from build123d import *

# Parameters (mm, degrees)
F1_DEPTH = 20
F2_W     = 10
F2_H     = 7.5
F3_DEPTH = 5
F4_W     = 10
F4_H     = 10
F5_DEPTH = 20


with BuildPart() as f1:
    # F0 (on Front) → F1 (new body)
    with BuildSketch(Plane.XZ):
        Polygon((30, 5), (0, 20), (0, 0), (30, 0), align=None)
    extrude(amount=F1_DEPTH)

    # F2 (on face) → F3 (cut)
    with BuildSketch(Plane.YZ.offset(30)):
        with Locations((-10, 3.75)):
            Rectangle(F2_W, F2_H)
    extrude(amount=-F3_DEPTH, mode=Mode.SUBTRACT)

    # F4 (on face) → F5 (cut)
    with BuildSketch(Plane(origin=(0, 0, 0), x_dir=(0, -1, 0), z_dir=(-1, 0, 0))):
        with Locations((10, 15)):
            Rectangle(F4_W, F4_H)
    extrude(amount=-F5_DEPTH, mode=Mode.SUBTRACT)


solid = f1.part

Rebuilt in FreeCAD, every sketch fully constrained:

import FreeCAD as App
import Part
import Sketcher
from FreeCAD import Vector
Q = App.Units.Quantity

doc = App.newDocument("Part")
params = doc.addObject("Spreadsheet::Sheet", "Params")
for row, (alias, value) in enumerate([
    ("sketch1_width", "30 mm"),
    ("sketch1_height", "20 mm"),
    ("sketch1_height2", "5 mm"),
    ("pad1_length", "20 mm"),
    ("sketch2_width", "10 mm"),
    ("sketch2_height", "7.5 mm"),
    ("pocket1_length", "5 mm"),
    ("sketch3_width", "10 mm"),
    ("pocket2_length", "20 mm"),
], start=1):
    params.set(f"A{row}", alias)
    params.set(f"B{row}", "=" + value)
    params.setAlias(f"B{row}", alias)

body = doc.addObject("PartDesign::Body", "Body")

sketch1 = doc.addObject("Sketcher::SketchObject", "Sketch")
body.addObject(sketch1)
sketch1.AttachmentSupport = (doc.XZ_Plane, [""])
sketch1.MapMode = "FlatFace"
sketch1.addGeometry([
    Part.LineSegment(Vector(30, 5, 0), Vector(0, 20, 0)),
    Part.LineSegment(Vector(0, 20, 0), Vector(0, 0, 0)),
    Part.LineSegment(Vector(0, 0, 0), Vector(30, 0, 0)),
    Part.LineSegment(Vector(30, 0, 0), Vector(30, 5, 0)),
], False)
sketch1.addConstraint([
    Sketcher.Constraint("Coincident", 0, 2, 1, 1),
    Sketcher.Constraint("Coincident", 1, 2, 2, 1),
    Sketcher.Constraint("Coincident", 2, 2, 3, 1),
    Sketcher.Constraint("Coincident", 3, 2, 0, 1),
    Sketcher.Constraint("Vertical", 1),
    Sketcher.Constraint("Horizontal", 2),
    Sketcher.Constraint("Vertical", 3),
    Sketcher.Constraint("Coincident", 1, 2, -1, 1),
    Sketcher.Constraint("DistanceX", 2, 1, 2, 2, Q("30 mm")),
    Sketcher.Constraint("DistanceY", 1, 2, 1, 1, Q("20 mm")),
    Sketcher.Constraint("DistanceY", 3, 1, 3, 2, Q("5 mm")),
])
sketch1.setExpression("Constraints[8]", "Params.sketch1_width")
sketch1.setExpression("Constraints[9]", "Params.sketch1_height")
sketch1.setExpression("Constraints[10]", "Params.sketch1_height2")
pad1 = doc.addObject("PartDesign::Pad", "Pad")
body.addObject(pad1)
pad1.Profile = sketch1
pad1.setExpression("Length", "Params.pad1_length")

sketch2 = doc.addObject("Sketcher::SketchObject", "Sketch001")
body.addObject(sketch2)
sketch2.AttachmentSupport = (doc.YZ_Plane, [""])
sketch2.MapMode = "FlatFace"
sketch2.AttachmentOffset = App.Placement(Vector(0, 0, 30), App.Rotation())
sketch2.addGeometry([
    Part.LineSegment(Vector(-15, 8, 0), Vector(-15, 0, 0)),
    Part.LineSegment(Vector(-15, 0, 0), Vector(-5, 0, 0)),
    Part.LineSegment(Vector(-5, 0, 0), Vector(-5, 8, 0)),
    Part.LineSegment(Vector(-5, 8, 0), Vector(-15, 8, 0)),
], False)
sketch2.addConstraint([
    Sketcher.Constraint("Coincident", 0, 2, 1, 1),
    Sketcher.Constraint("Coincident", 1, 2, 2, 1),
    Sketcher.Constraint("Coincident", 2, 2, 3, 1),
    Sketcher.Constraint("Coincident", 3, 2, 0, 1),
    Sketcher.Constraint("Vertical", 0),
    Sketcher.Constraint("Horizontal", 1),
    Sketcher.Constraint("Vertical", 2),
    Sketcher.Constraint("Horizontal", 3),
    Sketcher.Constraint("PointOnObject", 0, 2, -1),
    Sketcher.Constraint("DistanceX", 1, 1, 1, 2, Q("10 mm")),
    Sketcher.Constraint("DistanceY", 0, 2, 0, 1, Q("7.5 mm")),
    Sketcher.Constraint("DistanceX", 0, 2, -1, 1, Q("15 mm")),
])
sketch2.setExpression("Constraints[9]", "Params.sketch2_width")
sketch2.setExpression("Constraints[10]", "Params.sketch2_height")
pocket1 = doc.addObject("PartDesign::Pocket", "Pocket")
body.addObject(pocket1)
pocket1.Profile = sketch2
pocket1.setExpression("Length", "Params.pocket1_length")

sketch3 = doc.addObject("Sketcher::SketchObject", "Sketch002")
body.addObject(sketch3)
sketch3.AttachmentSupport = (doc.YZ_Plane, [""])
sketch3.MapMode = "FlatFace"
sketch3.addGeometry([
    Part.LineSegment(Vector(-5, 20, 0), Vector(-5, 10, 0)),
    Part.LineSegment(Vector(-5, 10, 0), Vector(-15, 10, 0)),
    Part.LineSegment(Vector(-15, 10, 0), Vector(-15, 20, 0)),
    Part.LineSegment(Vector(-15, 20, 0), Vector(-5, 20, 0)),
], False)
sketch3.addConstraint([
    Sketcher.Constraint("Coincident", 0, 2, 1, 1),
    Sketcher.Constraint("Coincident", 1, 2, 2, 1),
    Sketcher.Constraint("Coincident", 2, 2, 3, 1),
    Sketcher.Constraint("Coincident", 3, 2, 0, 1),
    Sketcher.Constraint("Vertical", 0),
    Sketcher.Constraint("Horizontal", 1),
    Sketcher.Constraint("Vertical", 2),
    Sketcher.Constraint("Horizontal", 3),
    Sketcher.Constraint("Equal", 3, 0),
    Sketcher.Constraint("DistanceX", 1, 2, 1, 1, Q("10 mm")),
    Sketcher.Constraint("DistanceX", 0, 2, -1, 1, Q("5 mm")),
    Sketcher.Constraint("DistanceY", -1, 1, 0, 2, Q("10 mm")),
])
sketch3.setExpression("Constraints[9]", "Params.sketch3_width")
pocket2 = doc.addObject("PartDesign::Pocket", "Pocket001")
body.addObject(pocket2)
pocket2.Profile = sketch3
pocket2.setExpression("Length", "Params.pocket2_length")
pocket2.Reversed = True

doc.recompute()
